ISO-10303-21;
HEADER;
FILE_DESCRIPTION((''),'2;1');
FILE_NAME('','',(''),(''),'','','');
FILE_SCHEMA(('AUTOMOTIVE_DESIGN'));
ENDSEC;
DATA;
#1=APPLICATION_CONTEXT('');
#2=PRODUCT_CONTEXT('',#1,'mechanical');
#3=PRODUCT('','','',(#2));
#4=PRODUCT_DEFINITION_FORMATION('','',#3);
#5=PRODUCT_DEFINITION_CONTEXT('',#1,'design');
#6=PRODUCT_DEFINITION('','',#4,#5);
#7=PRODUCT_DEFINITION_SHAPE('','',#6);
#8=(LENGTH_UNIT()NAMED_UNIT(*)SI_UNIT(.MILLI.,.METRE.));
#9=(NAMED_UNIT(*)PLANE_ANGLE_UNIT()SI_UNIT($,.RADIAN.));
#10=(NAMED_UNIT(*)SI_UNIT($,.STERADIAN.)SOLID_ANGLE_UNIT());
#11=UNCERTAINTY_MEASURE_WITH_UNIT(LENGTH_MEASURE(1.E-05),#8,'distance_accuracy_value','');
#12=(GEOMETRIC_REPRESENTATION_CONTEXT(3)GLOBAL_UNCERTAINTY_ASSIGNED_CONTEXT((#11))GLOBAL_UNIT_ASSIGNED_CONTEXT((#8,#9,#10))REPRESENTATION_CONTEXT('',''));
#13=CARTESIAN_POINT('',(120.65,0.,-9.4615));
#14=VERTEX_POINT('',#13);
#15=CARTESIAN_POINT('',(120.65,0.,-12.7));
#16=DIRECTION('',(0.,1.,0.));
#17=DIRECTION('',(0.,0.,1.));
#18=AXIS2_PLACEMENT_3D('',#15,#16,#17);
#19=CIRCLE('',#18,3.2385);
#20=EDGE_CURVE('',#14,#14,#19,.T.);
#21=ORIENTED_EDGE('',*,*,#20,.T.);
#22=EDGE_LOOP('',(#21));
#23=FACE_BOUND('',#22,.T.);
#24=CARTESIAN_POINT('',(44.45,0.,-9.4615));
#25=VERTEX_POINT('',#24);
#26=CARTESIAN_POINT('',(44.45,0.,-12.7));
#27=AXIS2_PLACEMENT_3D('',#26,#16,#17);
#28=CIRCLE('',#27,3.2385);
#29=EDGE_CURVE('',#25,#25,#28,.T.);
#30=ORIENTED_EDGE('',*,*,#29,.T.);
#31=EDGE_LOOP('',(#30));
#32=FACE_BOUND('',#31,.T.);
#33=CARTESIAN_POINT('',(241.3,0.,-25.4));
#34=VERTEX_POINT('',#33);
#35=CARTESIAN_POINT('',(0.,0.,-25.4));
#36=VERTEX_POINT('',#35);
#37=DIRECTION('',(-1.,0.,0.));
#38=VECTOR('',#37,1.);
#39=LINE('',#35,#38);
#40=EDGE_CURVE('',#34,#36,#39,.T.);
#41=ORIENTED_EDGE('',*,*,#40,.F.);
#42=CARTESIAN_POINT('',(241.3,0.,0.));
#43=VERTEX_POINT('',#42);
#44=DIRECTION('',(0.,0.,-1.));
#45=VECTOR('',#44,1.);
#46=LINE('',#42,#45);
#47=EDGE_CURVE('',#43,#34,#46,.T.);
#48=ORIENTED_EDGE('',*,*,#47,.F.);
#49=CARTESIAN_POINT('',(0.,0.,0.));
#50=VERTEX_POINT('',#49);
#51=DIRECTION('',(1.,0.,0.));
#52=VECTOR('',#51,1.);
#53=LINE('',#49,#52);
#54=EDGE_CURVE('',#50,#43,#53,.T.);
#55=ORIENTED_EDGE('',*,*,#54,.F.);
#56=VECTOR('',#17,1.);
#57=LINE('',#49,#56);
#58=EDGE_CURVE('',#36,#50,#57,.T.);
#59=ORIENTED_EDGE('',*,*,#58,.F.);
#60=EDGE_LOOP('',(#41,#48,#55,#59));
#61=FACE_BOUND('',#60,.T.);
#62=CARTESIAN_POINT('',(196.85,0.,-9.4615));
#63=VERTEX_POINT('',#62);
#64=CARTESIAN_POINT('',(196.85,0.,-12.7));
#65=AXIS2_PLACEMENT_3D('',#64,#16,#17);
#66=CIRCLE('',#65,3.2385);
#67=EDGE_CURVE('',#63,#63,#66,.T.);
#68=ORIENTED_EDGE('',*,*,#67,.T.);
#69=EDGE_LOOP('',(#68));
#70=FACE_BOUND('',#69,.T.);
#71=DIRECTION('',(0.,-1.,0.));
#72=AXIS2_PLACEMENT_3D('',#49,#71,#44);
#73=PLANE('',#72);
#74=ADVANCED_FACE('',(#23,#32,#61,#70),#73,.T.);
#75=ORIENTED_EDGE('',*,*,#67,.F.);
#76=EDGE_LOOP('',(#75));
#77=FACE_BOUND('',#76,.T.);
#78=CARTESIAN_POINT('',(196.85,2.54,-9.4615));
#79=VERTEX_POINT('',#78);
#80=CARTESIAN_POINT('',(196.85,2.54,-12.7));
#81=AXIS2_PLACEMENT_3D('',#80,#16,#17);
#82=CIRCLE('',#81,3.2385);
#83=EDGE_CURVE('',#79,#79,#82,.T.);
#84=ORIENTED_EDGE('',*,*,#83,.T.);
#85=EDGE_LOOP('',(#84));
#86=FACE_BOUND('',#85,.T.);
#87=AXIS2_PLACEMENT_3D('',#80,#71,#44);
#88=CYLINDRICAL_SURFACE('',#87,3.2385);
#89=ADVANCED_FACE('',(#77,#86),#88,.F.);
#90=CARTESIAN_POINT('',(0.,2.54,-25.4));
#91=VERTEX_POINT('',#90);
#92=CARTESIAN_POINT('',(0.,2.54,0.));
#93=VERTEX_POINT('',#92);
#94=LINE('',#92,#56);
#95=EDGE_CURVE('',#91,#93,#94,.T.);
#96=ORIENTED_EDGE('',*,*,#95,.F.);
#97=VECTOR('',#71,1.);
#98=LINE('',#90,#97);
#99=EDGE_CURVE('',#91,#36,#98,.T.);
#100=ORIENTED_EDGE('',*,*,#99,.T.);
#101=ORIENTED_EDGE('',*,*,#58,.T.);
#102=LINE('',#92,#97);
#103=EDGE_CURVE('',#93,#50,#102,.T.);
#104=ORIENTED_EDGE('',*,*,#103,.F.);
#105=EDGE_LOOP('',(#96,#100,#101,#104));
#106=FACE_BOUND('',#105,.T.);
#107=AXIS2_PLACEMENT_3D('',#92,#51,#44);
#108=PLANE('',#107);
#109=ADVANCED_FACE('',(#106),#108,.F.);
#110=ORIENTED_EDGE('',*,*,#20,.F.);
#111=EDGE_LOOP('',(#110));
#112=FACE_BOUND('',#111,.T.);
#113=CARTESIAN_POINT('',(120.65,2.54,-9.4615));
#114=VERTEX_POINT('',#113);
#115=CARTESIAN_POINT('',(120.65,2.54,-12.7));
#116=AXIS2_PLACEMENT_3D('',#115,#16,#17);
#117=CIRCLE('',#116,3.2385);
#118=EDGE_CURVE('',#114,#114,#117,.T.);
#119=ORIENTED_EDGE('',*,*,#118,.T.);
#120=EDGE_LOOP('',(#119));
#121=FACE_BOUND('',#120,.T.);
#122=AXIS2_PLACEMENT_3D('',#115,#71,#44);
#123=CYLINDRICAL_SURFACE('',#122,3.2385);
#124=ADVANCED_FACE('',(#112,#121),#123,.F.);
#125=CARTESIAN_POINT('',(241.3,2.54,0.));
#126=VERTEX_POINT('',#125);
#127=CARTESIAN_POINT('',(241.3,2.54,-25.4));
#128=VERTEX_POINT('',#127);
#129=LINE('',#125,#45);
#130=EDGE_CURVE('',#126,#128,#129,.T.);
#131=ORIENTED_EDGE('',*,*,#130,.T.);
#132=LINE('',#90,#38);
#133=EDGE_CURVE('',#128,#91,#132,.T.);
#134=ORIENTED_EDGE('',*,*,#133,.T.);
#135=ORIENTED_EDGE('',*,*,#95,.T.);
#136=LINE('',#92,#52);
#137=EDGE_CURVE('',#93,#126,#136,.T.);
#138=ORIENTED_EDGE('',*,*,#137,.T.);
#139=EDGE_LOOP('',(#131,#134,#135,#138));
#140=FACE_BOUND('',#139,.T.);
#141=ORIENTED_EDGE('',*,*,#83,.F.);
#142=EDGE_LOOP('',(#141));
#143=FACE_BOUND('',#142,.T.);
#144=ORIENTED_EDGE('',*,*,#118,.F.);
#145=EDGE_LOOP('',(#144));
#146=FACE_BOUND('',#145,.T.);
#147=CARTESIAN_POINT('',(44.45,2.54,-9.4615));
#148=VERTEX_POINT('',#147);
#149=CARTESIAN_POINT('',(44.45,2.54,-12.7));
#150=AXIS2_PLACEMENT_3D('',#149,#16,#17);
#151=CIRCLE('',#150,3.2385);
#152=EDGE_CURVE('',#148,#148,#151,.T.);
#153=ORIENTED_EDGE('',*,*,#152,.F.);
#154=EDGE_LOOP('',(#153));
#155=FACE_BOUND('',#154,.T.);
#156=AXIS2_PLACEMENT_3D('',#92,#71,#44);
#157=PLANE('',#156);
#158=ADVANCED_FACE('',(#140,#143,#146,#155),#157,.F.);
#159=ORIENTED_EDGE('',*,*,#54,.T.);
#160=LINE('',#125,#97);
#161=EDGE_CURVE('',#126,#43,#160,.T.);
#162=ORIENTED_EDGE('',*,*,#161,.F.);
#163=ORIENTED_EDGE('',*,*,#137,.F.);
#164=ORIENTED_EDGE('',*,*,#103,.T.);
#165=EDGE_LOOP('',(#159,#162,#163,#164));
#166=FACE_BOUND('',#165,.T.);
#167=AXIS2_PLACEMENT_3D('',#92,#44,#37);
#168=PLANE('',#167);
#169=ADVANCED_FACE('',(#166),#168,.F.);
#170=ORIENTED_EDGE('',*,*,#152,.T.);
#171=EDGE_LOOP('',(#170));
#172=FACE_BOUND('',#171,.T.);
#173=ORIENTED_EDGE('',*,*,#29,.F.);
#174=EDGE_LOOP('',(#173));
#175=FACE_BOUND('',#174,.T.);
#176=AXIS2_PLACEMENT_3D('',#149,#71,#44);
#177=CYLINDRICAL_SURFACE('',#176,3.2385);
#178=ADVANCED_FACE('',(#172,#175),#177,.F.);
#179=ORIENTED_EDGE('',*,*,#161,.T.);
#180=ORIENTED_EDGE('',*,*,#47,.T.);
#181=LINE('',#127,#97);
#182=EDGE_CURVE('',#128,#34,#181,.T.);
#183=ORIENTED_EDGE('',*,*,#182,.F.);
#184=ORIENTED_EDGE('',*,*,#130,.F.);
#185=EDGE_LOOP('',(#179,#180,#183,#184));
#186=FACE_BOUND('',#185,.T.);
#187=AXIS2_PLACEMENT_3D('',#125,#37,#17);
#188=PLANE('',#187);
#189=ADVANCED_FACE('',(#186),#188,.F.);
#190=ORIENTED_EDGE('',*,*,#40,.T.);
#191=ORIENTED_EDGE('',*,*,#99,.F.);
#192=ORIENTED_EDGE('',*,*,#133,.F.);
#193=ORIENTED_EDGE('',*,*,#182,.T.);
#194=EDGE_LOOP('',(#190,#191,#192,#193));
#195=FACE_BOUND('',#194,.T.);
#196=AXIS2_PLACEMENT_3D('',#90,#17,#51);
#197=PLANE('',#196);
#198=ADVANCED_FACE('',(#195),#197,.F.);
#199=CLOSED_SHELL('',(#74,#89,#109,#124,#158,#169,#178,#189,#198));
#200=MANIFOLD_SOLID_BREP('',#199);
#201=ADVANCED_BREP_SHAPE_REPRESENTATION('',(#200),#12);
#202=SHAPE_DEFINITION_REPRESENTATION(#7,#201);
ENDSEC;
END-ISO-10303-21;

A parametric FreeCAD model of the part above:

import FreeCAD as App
import Part
import Sketcher
Q = App.Units.Quantity

doc = App.newDocument("Part")
body = doc.addObject("PartDesign::Body", "Body")

sketch1 = doc.addObject("Sketcher::SketchObject", "Sketch")
body.addObject(sketch1)
sketch1.AttachmentSupport = (doc.XZ_Plane, [""])
sketch1.MapMode = "FlatFace"
sketch1.addGeometry([
    Part.LineSegment(App.Vector(0, -25.4, 0), App.Vector(0, 0, 0)),
    Part.LineSegment(App.Vector(0, 0, 0), App.Vector(241.3, 0, 0)),
    Part.LineSegment(App.Vector(241.3, 0, 0), App.Vector(241.3, -25.4, 0)),
    Part.LineSegment(App.Vector(241.3, -25.4, 0), App.Vector(0, -25.4, 0)),
    Part.Circle(App.Vector(44.45, -12.7, 0), App.Vector(0, 0, 1), 3.2385),
    Part.Circle(App.Vector(120.65, -12.7, 0), App.Vector(0, 0, 1), 3.2385),
    Part.Circle(App.Vector(196.85, -12.7, 0), App.Vector(0, 0, 1), 3.2385),
], False)
sketch1.addConstraint([
    Sketcher.Constraint("Coincident", 0, 2, 1, 1),
    Sketcher.Constraint("Coincident", 1, 2, 2, 1),
    Sketcher.Constraint("Coincident", 2, 2, 3, 1),
    Sketcher.Constraint("Coincident", 3, 2, 0, 1),
    Sketcher.Constraint("Vertical", 0),
    Sketcher.Constraint("Horizontal", 1),
    Sketcher.Constraint("Vertical", 2),
    Sketcher.Constraint("Horizontal", 3),
    Sketcher.Constraint("Coincident", 0, 2, -1, 1),
    Sketcher.Constraint("Equal", 4, 5),
    Sketcher.Constraint("Equal", 5, 6),
    Sketcher.Constraint("Horizontal", 4, 3, 5, 3),
    Sketcher.Constraint("Horizontal", 5, 3, 6, 3),
    Sketcher.Constraint("DistanceY", 0, 1, 0, 2, Q("1 in")),
    Sketcher.Constraint("Diameter", 4, Q("0.255 in")),
    Sketcher.Constraint("DistanceX", 1, 1, 1, 2, Q("9.5 in")),
    Sketcher.Constraint("DistanceX", 4, 3, 5, 3, Q("3 in")),
    Sketcher.Constraint("DistanceX", 5, 3, 6, 3, Q("3 in")),
    Sketcher.Constraint("DistanceY", 4, 3, -1, 1, Q("0.5 in")),
    Sketcher.Constraint("DistanceX", -1, 1, 4, 3, Q("1.75 in")),
])
pad1 = doc.addObject("PartDesign::Pad", "Pad")
body.addObject(pad1)
pad1.Profile = sketch1
pad1.Length = Q("0.1 in")
pad1.Reversed = True

doc.recompute()
